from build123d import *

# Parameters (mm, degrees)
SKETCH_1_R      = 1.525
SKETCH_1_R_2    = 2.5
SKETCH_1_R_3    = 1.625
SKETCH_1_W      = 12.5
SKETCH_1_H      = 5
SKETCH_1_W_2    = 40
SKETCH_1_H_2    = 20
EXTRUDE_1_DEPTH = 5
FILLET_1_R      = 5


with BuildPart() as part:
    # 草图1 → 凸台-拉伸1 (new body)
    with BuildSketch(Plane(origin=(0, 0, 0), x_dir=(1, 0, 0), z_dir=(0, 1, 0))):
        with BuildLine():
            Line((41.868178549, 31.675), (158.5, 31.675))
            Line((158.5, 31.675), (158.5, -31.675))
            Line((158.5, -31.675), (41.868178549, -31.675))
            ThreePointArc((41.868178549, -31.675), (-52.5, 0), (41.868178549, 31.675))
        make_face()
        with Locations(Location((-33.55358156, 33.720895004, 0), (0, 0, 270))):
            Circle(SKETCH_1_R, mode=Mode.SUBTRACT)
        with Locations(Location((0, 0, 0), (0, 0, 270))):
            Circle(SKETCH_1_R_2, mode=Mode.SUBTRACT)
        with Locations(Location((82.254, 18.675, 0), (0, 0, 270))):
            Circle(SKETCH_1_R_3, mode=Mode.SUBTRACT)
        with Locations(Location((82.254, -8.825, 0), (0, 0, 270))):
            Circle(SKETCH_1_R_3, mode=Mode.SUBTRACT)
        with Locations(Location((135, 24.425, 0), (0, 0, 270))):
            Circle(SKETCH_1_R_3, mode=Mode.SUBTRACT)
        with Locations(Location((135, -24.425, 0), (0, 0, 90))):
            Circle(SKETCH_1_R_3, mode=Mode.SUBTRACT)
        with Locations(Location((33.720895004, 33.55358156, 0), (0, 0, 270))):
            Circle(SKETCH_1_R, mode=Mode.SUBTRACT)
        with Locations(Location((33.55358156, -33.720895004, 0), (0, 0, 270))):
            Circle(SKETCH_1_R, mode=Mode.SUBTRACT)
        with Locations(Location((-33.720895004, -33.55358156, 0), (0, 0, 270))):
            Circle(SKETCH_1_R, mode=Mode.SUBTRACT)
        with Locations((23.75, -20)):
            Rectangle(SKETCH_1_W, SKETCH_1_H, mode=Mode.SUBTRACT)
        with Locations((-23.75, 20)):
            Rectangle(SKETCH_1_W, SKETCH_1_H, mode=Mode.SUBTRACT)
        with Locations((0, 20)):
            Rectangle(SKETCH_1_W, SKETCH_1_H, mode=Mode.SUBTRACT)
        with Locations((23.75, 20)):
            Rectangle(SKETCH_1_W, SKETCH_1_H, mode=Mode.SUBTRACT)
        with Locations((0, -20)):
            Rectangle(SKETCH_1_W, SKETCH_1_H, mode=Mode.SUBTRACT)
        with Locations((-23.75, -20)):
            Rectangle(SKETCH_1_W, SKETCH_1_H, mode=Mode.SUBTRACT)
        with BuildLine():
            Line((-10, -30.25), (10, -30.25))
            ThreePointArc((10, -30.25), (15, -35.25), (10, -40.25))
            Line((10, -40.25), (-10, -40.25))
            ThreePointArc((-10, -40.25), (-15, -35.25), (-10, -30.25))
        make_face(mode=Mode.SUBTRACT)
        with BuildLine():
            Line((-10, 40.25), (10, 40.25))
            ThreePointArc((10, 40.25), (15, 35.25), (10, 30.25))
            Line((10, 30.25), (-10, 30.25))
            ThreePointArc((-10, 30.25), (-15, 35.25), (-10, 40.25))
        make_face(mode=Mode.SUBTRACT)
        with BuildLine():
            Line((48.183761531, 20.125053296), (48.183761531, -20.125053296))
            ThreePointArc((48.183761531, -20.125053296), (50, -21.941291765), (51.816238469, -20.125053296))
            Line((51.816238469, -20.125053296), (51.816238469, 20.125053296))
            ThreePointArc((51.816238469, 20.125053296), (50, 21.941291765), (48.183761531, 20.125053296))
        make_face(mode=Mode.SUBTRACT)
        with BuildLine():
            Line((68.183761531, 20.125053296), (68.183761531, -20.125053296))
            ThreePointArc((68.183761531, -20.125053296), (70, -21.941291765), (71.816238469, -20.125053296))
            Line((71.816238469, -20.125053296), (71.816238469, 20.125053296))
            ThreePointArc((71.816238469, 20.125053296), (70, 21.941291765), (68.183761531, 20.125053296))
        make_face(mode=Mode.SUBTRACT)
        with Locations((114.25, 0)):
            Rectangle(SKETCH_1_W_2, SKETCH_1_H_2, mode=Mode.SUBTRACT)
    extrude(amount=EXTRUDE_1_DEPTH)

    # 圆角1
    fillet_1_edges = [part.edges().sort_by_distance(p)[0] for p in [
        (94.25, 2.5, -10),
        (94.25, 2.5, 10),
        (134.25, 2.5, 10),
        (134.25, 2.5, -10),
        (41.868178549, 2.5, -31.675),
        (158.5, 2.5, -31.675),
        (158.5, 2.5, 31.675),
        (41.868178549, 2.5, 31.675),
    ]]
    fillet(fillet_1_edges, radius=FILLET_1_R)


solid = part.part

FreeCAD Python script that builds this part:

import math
import FreeCAD as App
import Part
import Sketcher
from FreeCAD import Vector
Q = App.Units.Quantity


def edges_at(feature, points):
    """Names of the edges that pass closest to the given points."""
    edges = feature.Shape.Edges
    near = lambda p: min(range(len(edges)), key=lambda i: edges[i].distToShape(Part.Vertex(*p))[0])
    return sorted({f"Edge{near(p) + 1}" for p in points})

doc = App.newDocument("Part")
body = doc.addObject("PartDesign::Body", "Body")

sketch1 = body.newObject("Sketcher::SketchObject", "Sketch")
sketch1.AttachmentSupport = (doc.getObject("XZ_Plane"), [""])
sketch1.MapMode = "FlatFace"
sketch1.addGeometry([
    Part.LineSegment(Vector(158.5, -31.7, 0), Vector(41.9, -31.7, 0)),
    Part.ArcOfCircle(Part.Circle(Vector(0, 0, 0), Vector(0, 0, 1), 52.5), math.radians(37), math.radians(323)),
    Part.LineSegment(Vector(41.9, 31.7, 0), Vector(158.5, 31.7, 0)),
    Part.LineSegment(Vector(158.5, 31.7, 0), Vector(158.5, -31.7, 0)),
    Part.Circle(Vector(135, 24.4, 0), Vector(0, 0, 1), 1.6),
    Part.LineSegment(Vector(94.2, 10, 0), Vector(94.2, -10, 0)),
    Part.LineSegment(Vector(94.2, -10, 0), Vector(134.2, -10, 0)),
    Part.LineSegment(Vector(134.2, -10, 0), Vector(134.2, 10, 0)),
    Part.LineSegment(Vector(134.2, 10, 0), Vector(94.2, 10, 0)),
    Part.Circle(Vector(82.3, 8.8, 0), Vector(0, 0, 1), 1.6),
    Part.ArcOfCircle(Part.Circle(Vector(70, -20.1, 0), Vector(0, 0, 1), 1.8), math.radians(180), math.radians(360)),
    Part.LineSegment(Vector(71.8, -20.1, 0), Vector(71.8, 20.1, 0)),
    Part.ArcOfCircle(Part.Circle(Vector(70, 20.1, 0), Vector(0, 0, 1), 1.8), math.radians(0), math.radians(180)),
    Part.LineSegment(Vector(68.2, 20.1, 0), Vector(68.2, -20.1, 0)),
    Part.Circle(Vector(33.6, 33.7, 0), Vector(0, 0, 1), 1.5),
    Part.LineSegment(Vector(-10, 30.2, 0), Vector(10, 30.2, 0)),
    Part.ArcOfCircle(Part.Circle(Vector(10, 35.2, 0), Vector(0, 0, 1), 5), math.radians(-90), math.radians(90)),
    Part.LineSegment(Vector(10, 40.2, 0), Vector(-10, 40.2, 0)),
    Part.ArcOfCircle(Part.Circle(Vector(-10, 35.2, 0), Vector(0, 0, 1), 5), math.radians(90), math.radians(270)),
    Part.Circle(Vector(-33.7, 33.6, 0), Vector(0, 0, 1), 1.5),
    Part.LineSegment(Vector(17.5, 22.5, 0), Vector(17.5, 17.5, 0)),
    Part.LineSegment(Vector(17.5, 17.5, 0), Vector(30, 17.5, 0)),
    Part.LineSegment(Vector(30, 17.5, 0), Vector(30, 22.5, 0)),
    Part.LineSegment(Vector(30, 22.5, 0), Vector(17.5, 22.5, 0)),
    Part.ArcOfCircle(Part.Circle(Vector(50, -20.1, 0), Vector(0, 0, 1), 1.8), math.radians(180), math.radians(360)),
    Part.LineSegment(Vector(51.8, -20.1, 0), Vector(51.8, 20.1, 0)),
    Part.ArcOfCircle(Part.Circle(Vector(50, 20.1, 0), Vector(0, 0, 1), 1.8), math.radians(0), math.radians(180)),
    Part.LineSegment(Vector(48.2, 20.1, 0), Vector(48.2, -20.1, 0)),
    Part.LineSegment(Vector(-6.2, 22.5, 0), Vector(-6.2, 17.5, 0)),
    Part.LineSegment(Vector(-6.2, 17.5, 0), Vector(6.2, 17.5, 0)),
    Part.LineSegment(Vector(6.2, 17.5, 0), Vector(6.2, 22.5, 0)),
    Part.LineSegment(Vector(6.2, 22.5, 0), Vector(-6.2, 22.5, 0)),
    Part.LineSegment(Vector(-30, 22.5, 0), Vector(-30, 17.5, 0)),
    Part.LineSegment(Vector(-30, 17.5, 0), Vector(-17.5, 17.5, 0)),
    Part.LineSegment(Vector(-17.5, 17.5, 0), Vector(-17.5, 22.5, 0)),
    Part.LineSegment(Vector(-17.5, 22.5, 0), Vector(-30, 22.5, 0)),
    Part.Circle(Vector(0, 0, 0), Vector(0, 0, 1), 2.5),
    Part.Circle(Vector(82.3, -18.7, 0), Vector(0, 0, 1), 1.6),
    Part.Circle(Vector(135, -24.4, 0), Vector(0, 0, 1), 1.6),
    Part.LineSegment(Vector(17.5, -17.5, 0), Vector(17.5, -22.5, 0)),
    Part.LineSegment(Vector(17.5, -22.5, 0), Vector(30, -22.5, 0)),
    Part.LineSegment(Vector(30, -22.5, 0), Vector(30, -17.5, 0)),
    Part.LineSegment(Vector(30, -17.5, 0), Vector(17.5, -17.5, 0)),
    Part.LineSegment(Vector(-6.2, -17.5, 0), Vector(-6.2, -22.5, 0)),
    Part.LineSegment(Vector(-6.2, -22.5, 0), Vector(6.2, -22.5, 0)),
    Part.LineSegment(Vector(6.2, -22.5, 0), Vector(6.2, -17.5, 0)),
    Part.LineSegment(Vector(6.2, -17.5, 0), Vector(-6.2, -17.5, 0)),
    Part.LineSegment(Vector(-30, -17.5, 0), Vector(-30, -22.5, 0)),
    Part.LineSegment(Vector(-30, -22.5, 0), Vector(-17.5, -22.5, 0)),
    Part.LineSegment(Vector(-17.5, -22.5, 0), Vector(-17.5, -17.5, 0)),
    Part.LineSegment(Vector(-17.5, -17.5, 0), Vector(-30, -17.5, 0)),
    Part.Circle(Vector(33.7, -33.6, 0), Vector(0, 0, 1), 1.5),
    Part.LineSegment(Vector(-10, -40.2, 0), Vector(10, -40.2, 0)),
    Part.ArcOfCircle(Part.Circle(Vector(10, -35.2, 0), Vector(0, 0, 1), 5), math.radians(-90), math.radians(90)),
    Part.LineSegment(Vector(10, -30.2, 0), Vector(-10, -30.2, 0)),
    Part.ArcOfCircle(Part.Circle(Vector(-10, -35.2, 0), Vector(0, 0, 1), 5), math.radians(90), math.radians(270)),
    Part.Circle(Vector(-33.6, -33.7, 0), Vector(0, 0, 1), 1.5),
], False)
sketch1.addConstraint([
    Sketcher.Constraint("Coincident", 0, 2, 1, 2),
    Sketcher.Constraint("Coincident", 1, 1, 2, 1),
    Sketcher.Constraint("Coincident", 2, 2, 3, 1),
    Sketcher.Constraint("Coincident", 3, 2, 0, 1),
    Sketcher.Constraint("Coincident", 5, 2, 6, 1),
    Sketcher.Constraint("Coincident", 6, 2, 7, 1),
    Sketcher.Constraint("Coincident", 7, 2, 8, 1),
    Sketcher.Constraint("Coincident", 8, 2, 5, 1),
    Sketcher.Constraint("Tangent", 10, 2, 11, 1),
    Sketcher.Constraint("Tangent", 11, 2, 12, 1),
    Sketcher.Constraint("Tangent", 12, 2, 13, 1),
    Sketcher.Constraint("Tangent", 13, 2, 10, 1),
    Sketcher.Constraint("Tangent", 15, 2, 16, 1),
    Sketcher.Constraint("Tangent", 16, 2, 17, 1),
    Sketcher.Constraint("Tangent", 17, 2, 18, 1),
    Sketcher.Constraint("Tangent", 18, 2, 15, 1),
    Sketcher.Constraint("Coincident", 20, 2, 21, 1),
    Sketcher.Constraint("Coincident", 21, 2, 22, 1),
    Sketcher.Constraint("Coincident", 22, 2, 23, 1),
    Sketcher.Constraint("Coincident", 23, 2, 20, 1),
    Sketcher.Constraint("Tangent", 24, 2, 25, 1),
    Sketcher.Constraint("Tangent", 25, 2, 26, 1),
    Sketcher.Constraint("Tangent", 26, 2, 27, 1),
    Sketcher.Constraint("Tangent", 27, 2, 24, 1),
    Sketcher.Constraint("Coincident", 28, 2, 29, 1),
    Sketcher.Constraint("Coincident", 29, 2, 30, 1),
    Sketcher.Constraint("Coincident", 30, 2, 31, 1),
    Sketcher.Constraint("Coincident", 31, 2, 28, 1),
    Sketcher.Constraint("Coincident", 32, 2, 33, 1),
    Sketcher.Constraint("Coincident", 33, 2, 34, 1),
    Sketcher.Constraint("Coincident", 34, 2, 35, 1),
    Sketcher.Constraint("Coincident", 35, 2, 32, 1),
    Sketcher.Constraint("Coincident", 39, 2, 40, 1),
    Sketcher.Constraint("Coincident", 40, 2, 41, 1),
    Sketcher.Constraint("Coincident", 41, 2, 42, 1),
    Sketcher.Constraint("Coincident", 42, 2, 39, 1),
    Sketcher.Constraint("Coincident", 43, 2, 44, 1),
    Sketcher.Constraint("Coincident", 44, 2, 45, 1),
    Sketcher.Constraint("Coincident", 45, 2, 46, 1),
    Sketcher.Constraint("Coincident", 46, 2, 43, 1),
    Sketcher.Constraint("Coincident", 47, 2, 48, 1),
    Sketcher.Constraint("Coincident", 48, 2, 49, 1),
    Sketcher.Constraint("Coincident", 49, 2, 50, 1),
    Sketcher.Constraint("Coincident", 50, 2, 47, 1),
    Sketcher.Constraint("Tangent", 52, 2, 53, 1),
    Sketcher.Constraint("Tangent", 53, 2, 54, 1),
    Sketcher.Constraint("Tangent", 54, 2, 55, 1),
    Sketcher.Constraint("Tangent", 55, 2, 52, 1),
    Sketcher.Constraint("Horizontal", 0),
    Sketcher.Constraint("Horizontal", 2),
    Sketcher.Constraint("Vertical", 3),
    Sketcher.Constraint("Vertical", 5),
    Sketcher.Constraint("Horizontal", 6),
    Sketcher.Constraint("Vertical", 7),
    Sketcher.Constraint("Horizontal", 8),
    Sketcher.Constraint("Vertical", 11),
    Sketcher.Constraint("Vertical", 13),
    Sketcher.Constraint("Horizontal", 15),
    Sketcher.Constraint("Horizontal", 17),
    Sketcher.Constraint("Vertical", 20),
    Sketcher.Constraint("Horizontal", 21),
    Sketcher.Constraint("Vertical", 22),
    Sketcher.Constraint("Horizontal", 23),
    Sketcher.Constraint("Vertical", 25),
    Sketcher.Constraint("Vertical", 27),
    Sketcher.Constraint("Vertical", 28),
    Sketcher.Constraint("Horizontal", 29),
    Sketcher.Constraint("Vertical", 30),
    Sketcher.Constraint("Horizontal", 31),
    Sketcher.Constraint("Vertical", 32),
    Sketcher.Constraint("Horizontal", 33),
    Sketcher.Constraint("Vertical", 34),
    Sketcher.Constraint("Horizontal", 35),
    Sketcher.Constraint("Vertical", 39),
    Sketcher.Constraint("Horizontal", 40),
    Sketcher.Constraint("Vertical", 41),
    Sketcher.Constraint("Horizontal", 42),
    Sketcher.Constraint("Vertical", 43),
    Sketcher.Constraint("Horizontal", 44),
    Sketcher.Constraint("Vertical", 45),
    Sketcher.Constraint("Horizontal", 46),
    Sketcher.Constraint("Vertical", 47),
    Sketcher.Constraint("Horizontal", 48),
    Sketcher.Constraint("Vertical", 49),
    Sketcher.Constraint("Horizontal", 50),
    Sketcher.Constraint("Horizontal", 52),
    Sketcher.Constraint("Horizontal", 54),
    Sketcher.Constraint("Coincident", 1, 3, -1, 1),
    Sketcher.Constraint("Coincident", 36, 3, -1, 1),
    Sketcher.Constraint("Equal", 4, 9),
    Sketcher.Constraint("Equal", 14, 19),
    Sketcher.Constraint("Equal", 12, 24),
    Sketcher.Constraint("Equal", 9, 37),
    Sketcher.Constraint("Equal", 37, 38),
    Sketcher.Constraint("Equal", 19, 51),
    Sketcher.Constraint("Equal", 18, 53),
    Sketcher.Constraint("Equal", 51, 56),
    Sketcher.Constraint("Symmetric", 19, 3, 51, 3, -1, 1),
    Sketcher.Constraint("Symmetric", 18, 3, 53, 3, -1, 1),
    Sketcher.Constraint("Symmetric", 14, 3, 56, 3, -1, 1),
    Sketcher.Constraint("Symmetric", 34, 2, 39, 2, -1, 1),
    Sketcher.Constraint("Symmetric", 32, 2, 41, 2, -1, 1),
    Sketcher.Constraint("Symmetric", 30, 2, 43, 2, -1, 1),
    Sketcher.Constraint("Symmetric", 28, 2, 45, 2, -1, 1),
    Sketcher.Constraint("Symmetric", 22, 2, 47, 2, -1, 1),
    Sketcher.Constraint("Symmetric", 20, 2, 49, 2, -1, 1),
    Sketcher.Constraint("Symmetric", 21, 2, 32, 2, -2),
    Sketcher.Constraint("Symmetric", 23, 2, 34, 2, -2),
    Sketcher.Constraint("Symmetric", 4, 3, 38, 3, -1),
    Sketcher.Constraint("Horizontal", 10, 3, 24, 3),
    Sketcher.Constraint("Horizontal", 12, 3, 26, 3),
    Sketcher.Constraint("Horizontal", 21, 2, 28, 2),
    Sketcher.Constraint("Horizontal", 23, 2, 30, 2),
    Sketcher.Constraint("Vertical", 9, 3, 37, 3),
    Sketcher.Constraint("Vertical", 16, 3, 53, 3),
    Sketcher.Constraint("Vertical", 18, 3, 55, 3),
    Sketcher.Constraint("Vertical", 0, 2, 1, 1),
    Sketcher.Constraint("Vertical", 31, 2, 43, 2),
    Sketcher.Constraint("Equal", 23, 29),
    Sketcher.Constraint("Equal", 54, 5),
    Sketcher.Constraint("Diameter", 36, Q("5 mm")),
    Sketcher.Constraint("Radius", 16, Q("5 mm")),
    Sketcher.Constraint("Radius", 1, Q("52.5 mm")),
    Sketcher.Constraint("Diameter", 4, Q("3.25 mm")),
    Sketcher.Constraint("Diameter", 14, Q("3.05 mm")),
    Sketcher.Constraint("DistanceX", 6, 1, 6, 2, Q("40 mm")),
    Sketcher.Constraint("DistanceX", 15, 1, 15, 2, Q("20 mm")),
    Sketcher.Constraint("DistanceY", 20, 2, 20, 1, Q("5 mm")),
    Sketcher.Constraint("DistanceX", 21, 1, 21, 2, Q("12.5 mm")),
    Sketcher.Constraint("DistanceX", -1, 1, 4, 3, Q("135 mm")),
    Sketcher.Constraint("DistanceX", -1, 1, 10, 3, Q("70 mm")),
    Sketcher.Constraint("DistanceX", -1, 1, 24, 3, Q("50 mm")),
    Sketcher.Constraint("DistanceY", 5, 2, -1, 1, Q("10 mm")),
    Sketcher.Constraint("DistanceX", -1, 1, 21, 2, Q("30 mm")),
    Sketcher.Constraint("DistanceY", 3, 2, 3, 1, Q("63.35 mm")),
    Sketcher.Constraint("DistanceX", -1, 1, 2, 2, Q("158.5 mm")),
    Sketcher.Constraint("DistanceY", -1, 1, 20, 2, Q("17.5 mm")),
    Sketcher.Constraint("DistanceY", -1, 1, 16, 3, Q("35.25 mm")),
    Sketcher.Constraint("DistanceX", -1, 1, 5, 2, Q("94.25 mm")),
    Sketcher.Constraint("Radius", 10, Q("1.816238 mm")),
    Sketcher.Constraint("DistanceY", -1, 1, 4, 3, Q("24.425 mm")),
    Sketcher.Constraint("DistanceX", -1, 1, 9, 3, Q("82.254 mm")),
    Sketcher.Constraint("DistanceY", -1, 1, 9, 3, Q("8.825 mm")),
    Sketcher.Constraint("DistanceY", 37, 3, -1, 1, Q("18.675 mm")),
    Sketcher.Constraint("DistanceY", 11, 1, 11, 2, Q("40.250107 mm")),
    Sketcher.Constraint("DistanceX", -1, 1, 14, 3, Q("33.553582 mm")),
    Sketcher.Constraint("DistanceY", -1, 1, 19, 3, Q("33.553582 mm")),
    Sketcher.Constraint("DistanceY", 10, 3, -1, 1, Q("20.125053 mm")),
    Sketcher.Constraint("DistanceY", -1, 1, 14, 3, Q("33.720895 mm")),
    Sketcher.Constraint("DistanceX", 19, 3, -1, 1, Q("33.720895 mm")),
])
pad1 = body.newObject("PartDesign::Pad", "Pad")
pad1.Profile = sketch1
pad1.Length = 5
pad1.Reversed = True
doc.recompute()

fillet = body.newObject("PartDesign::Fillet", "Fillet")
fillet.Base = (pad1, edges_at(pad1, [
    (94.25, 2.5, -10),
    (94.25, 2.5, 10),
    (134.25, 2.5, 10),
    (134.25, 2.5, -10),
    (41.868, 2.5, -31.675),
    (158.5, 2.5, -31.675),
    (158.5, 2.5, 31.675),
    (41.868, 2.5, 31.675),
]))
fillet.Radius = 5

doc.recompute()
